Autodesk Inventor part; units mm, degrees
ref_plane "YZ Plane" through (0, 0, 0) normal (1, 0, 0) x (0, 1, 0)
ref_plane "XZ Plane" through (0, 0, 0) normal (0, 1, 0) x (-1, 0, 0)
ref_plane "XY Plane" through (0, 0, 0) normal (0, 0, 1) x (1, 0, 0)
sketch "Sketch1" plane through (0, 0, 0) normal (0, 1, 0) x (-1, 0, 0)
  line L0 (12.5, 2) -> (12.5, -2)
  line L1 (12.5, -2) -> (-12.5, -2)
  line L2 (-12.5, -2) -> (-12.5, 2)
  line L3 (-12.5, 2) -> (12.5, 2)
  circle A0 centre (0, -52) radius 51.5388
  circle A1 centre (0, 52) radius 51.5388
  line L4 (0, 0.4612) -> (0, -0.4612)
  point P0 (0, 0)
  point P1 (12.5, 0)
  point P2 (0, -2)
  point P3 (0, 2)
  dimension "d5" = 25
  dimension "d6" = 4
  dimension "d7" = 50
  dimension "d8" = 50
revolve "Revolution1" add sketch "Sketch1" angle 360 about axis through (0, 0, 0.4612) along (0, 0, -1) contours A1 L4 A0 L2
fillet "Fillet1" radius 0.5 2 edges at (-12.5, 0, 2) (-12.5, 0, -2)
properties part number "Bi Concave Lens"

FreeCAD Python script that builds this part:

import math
import FreeCAD as App
import Part
import Sketcher
Q = App.Units.Quantity


def edges_at(feature, points):
    """Names of the edges that pass closest to the given points."""
    edges = feature.Shape.Edges
    near = lambda p: min(range(len(edges)), key=lambda i: edges[i].distToShape(Part.Vertex(*p))[0])
    return sorted({f"Edge{near(p) + 1}" for p in points})

doc = App.newDocument("Part")
body = doc.addObject("PartDesign::Body", "Body")

# Sketch on XZ plane
sketch1 = body.newObject("Sketcher::SketchObject", "Sketch")
sketch1.AttachmentSupport = (doc.getObject("XZ_Plane"), [""])
sketch1.MapMode = "FlatFace"
sketch1.addGeometry(Part.ArcOfCircle(Part.Circle(App.Vector(0, 52, 0), App.Vector(0, 0, 1), 51.5), math.radians(-90), math.radians(-75.96)), False)
sketch1.addGeometry(Part.LineSegment(App.Vector(12.5, 2, 0), App.Vector(12.5, -2, 0)), False)
sketch1.addGeometry(Part.ArcOfCircle(Part.Circle(App.Vector(0, -52, 0), App.Vector(0, 0, 1), 51.5), math.radians(75.96), math.radians(90)), False)
sketch1.addGeometry(Part.LineSegment(App.Vector(0, -0.5, 0), App.Vector(0, 0.5, 0)), False)
sketch1.addConstraint(Sketcher.Constraint("Coincident", 0, 2, 1, 1))
sketch1.addConstraint(Sketcher.Constraint("Coincident", 1, 2, 2, 1))
sketch1.addConstraint(Sketcher.Constraint("Coincident", 2, 2, 3, 1))
sketch1.addConstraint(Sketcher.Constraint("Coincident", 3, 2, 0, 1))
sketch1.addConstraint(Sketcher.Constraint("Vertical", 1))
sketch1.addConstraint(Sketcher.Constraint("Vertical", 3))
sketch1.addConstraint(Sketcher.Constraint("Equal", 0, 2))
sketch1.addConstraint(Sketcher.Constraint("Symmetric", 0, 3, 2, 3, -1, 1))
sketch1.addConstraint(Sketcher.Constraint("PointOnObject", 0, 3, -2))
sketch1.addConstraint(Sketcher.Constraint("PointOnObject", 2, 2, -2))
sketch1.addConstraint(Sketcher.Constraint("DistanceY", 1, 2, 1, 1, Q("4 mm")))
sketch1.addConstraint(Sketcher.Constraint("DistanceY", 0, 2, 0, 3, Q("50 mm")))
sketch1.addConstraint(Sketcher.Constraint("DistanceX", -1, 1, 0, 2, Q("12.5 mm")))
revolution = body.newObject("PartDesign::Revolution", "Revolution")
revolution.Profile = sketch1
revolution.ReferenceAxis = (sketch1, ["V_Axis"])
revolution.Angle = 360
doc.recompute()

fillet = body.newObject("PartDesign::Fillet", "Fillet")
fillet.Base = (revolution, edges_at(revolution, [(-12.5, 0, 2), (-12.5, 0, -2)]))
fillet.Radius = 0.5

doc.recompute()
